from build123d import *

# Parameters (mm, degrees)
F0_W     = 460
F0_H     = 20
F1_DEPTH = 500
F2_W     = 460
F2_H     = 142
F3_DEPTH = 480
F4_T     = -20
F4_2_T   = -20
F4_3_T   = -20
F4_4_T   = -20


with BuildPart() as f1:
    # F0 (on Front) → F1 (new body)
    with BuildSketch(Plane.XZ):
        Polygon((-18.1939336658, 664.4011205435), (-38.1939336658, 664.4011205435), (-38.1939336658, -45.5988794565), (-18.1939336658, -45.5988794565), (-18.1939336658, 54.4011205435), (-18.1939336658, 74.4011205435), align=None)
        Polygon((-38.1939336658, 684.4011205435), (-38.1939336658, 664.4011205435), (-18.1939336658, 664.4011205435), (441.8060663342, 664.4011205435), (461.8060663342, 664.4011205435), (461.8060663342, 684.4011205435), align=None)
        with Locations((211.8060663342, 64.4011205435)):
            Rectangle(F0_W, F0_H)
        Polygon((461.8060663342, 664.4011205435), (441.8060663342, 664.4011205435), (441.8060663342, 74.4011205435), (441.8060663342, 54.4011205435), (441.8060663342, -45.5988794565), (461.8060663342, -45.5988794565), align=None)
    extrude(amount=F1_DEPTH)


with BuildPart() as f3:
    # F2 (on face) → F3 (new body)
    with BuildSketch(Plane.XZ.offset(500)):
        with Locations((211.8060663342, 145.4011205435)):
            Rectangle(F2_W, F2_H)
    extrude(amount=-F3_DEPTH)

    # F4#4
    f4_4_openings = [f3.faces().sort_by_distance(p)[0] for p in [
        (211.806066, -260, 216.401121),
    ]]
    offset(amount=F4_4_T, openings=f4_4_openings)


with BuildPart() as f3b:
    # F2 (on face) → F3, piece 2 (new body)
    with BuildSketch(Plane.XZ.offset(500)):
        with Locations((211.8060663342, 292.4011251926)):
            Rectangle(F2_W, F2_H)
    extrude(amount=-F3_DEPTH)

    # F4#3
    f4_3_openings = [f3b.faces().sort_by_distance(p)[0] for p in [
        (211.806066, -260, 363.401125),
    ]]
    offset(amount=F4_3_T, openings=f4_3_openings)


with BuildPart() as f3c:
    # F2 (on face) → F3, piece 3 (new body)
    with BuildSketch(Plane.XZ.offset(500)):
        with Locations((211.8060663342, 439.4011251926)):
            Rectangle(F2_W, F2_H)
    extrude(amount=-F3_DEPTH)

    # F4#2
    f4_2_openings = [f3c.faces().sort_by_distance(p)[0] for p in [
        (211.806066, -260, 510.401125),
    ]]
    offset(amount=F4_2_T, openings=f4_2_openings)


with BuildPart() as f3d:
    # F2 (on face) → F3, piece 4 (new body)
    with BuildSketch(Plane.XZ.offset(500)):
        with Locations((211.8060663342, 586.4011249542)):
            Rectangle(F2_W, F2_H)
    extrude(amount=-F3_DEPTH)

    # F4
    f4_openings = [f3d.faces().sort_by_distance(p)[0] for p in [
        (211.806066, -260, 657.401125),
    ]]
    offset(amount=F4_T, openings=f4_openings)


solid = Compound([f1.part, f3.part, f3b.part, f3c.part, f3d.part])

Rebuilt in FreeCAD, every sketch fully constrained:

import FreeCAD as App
import Part
import Sketcher
Q = App.Units.Quantity


def faces_at(feature, points):
    """Names of the faces that lie closest to the given points."""
    faces = feature.Shape.Faces
    near = lambda p: min(range(len(faces)), key=lambda i: faces[i].distToShape(Part.Vertex(*p))[0])
    return sorted({f"Face{near(p) + 1}" for p in points})

doc = App.newDocument("Part")
body = doc.addObject("PartDesign::Body", "Body")

# Sketch on XZ plane
sketch1 = doc.addObject("Sketcher::SketchObject", "Sketch")
body.addObject(sketch1)
sketch1.AttachmentSupport = (doc.XZ_Plane, [""])
sketch1.MapMode = "FlatFace"
sketch1.addGeometry([
    Part.LineSegment(App.Vector(-38.193934, -45.598879, 0), App.Vector(-18.193934, -45.598879, 0)),  # 0
    Part.LineSegment(App.Vector(-18.193934, -45.598879, 0), App.Vector(-18.193934, 54.401121, 0)),  # 1
    Part.LineSegment(App.Vector(-18.193934, 54.401121, 0), App.Vector(441.806066, 54.401121, 0)),  # 2
    Part.LineSegment(App.Vector(441.806066, 54.401121, 0), App.Vector(441.806066, -45.598879, 0)),  # 3
    Part.LineSegment(App.Vector(441.806066, -45.598879, 0), App.Vector(461.806066, -45.598879, 0)),  # 4
    Part.LineSegment(App.Vector(461.806066, -45.598879, 0), App.Vector(461.806066, 684.401121, 0)),  # 5
    Part.LineSegment(App.Vector(461.806066, 684.401121, 0), App.Vector(-38.193934, 684.401121, 0)),  # 6
    Part.LineSegment(App.Vector(-38.193934, 684.401121, 0), App.Vector(-38.193934, -45.598879, 0)),  # 7
    Part.LineSegment(App.Vector(441.806066, 74.401121, 0), App.Vector(-18.193934, 74.401121, 0)),  # 8
    Part.LineSegment(App.Vector(-18.193934, 74.401121, 0), App.Vector(-18.193934, 664.401121, 0)),  # 9
    Part.LineSegment(App.Vector(-18.193934, 664.401121, 0), App.Vector(441.806066, 664.401121, 0)),  # 10
    Part.LineSegment(App.Vector(441.806066, 664.401121, 0), App.Vector(441.806066, 74.401121, 0)),  # 11
], False)
sketch1.addConstraint([
    Sketcher.Constraint("Coincident", 0, 2, 1, 1),
    Sketcher.Constraint("Coincident", 1, 2, 2, 1),
    Sketcher.Constraint("Coincident", 2, 2, 3, 1),
    Sketcher.Constraint("Coincident", 3, 2, 4, 1),
    Sketcher.Constraint("Coincident", 4, 2, 5, 1),
    Sketcher.Constraint("Coincident", 5, 2, 6, 1),
    Sketcher.Constraint("Coincident", 6, 2, 7, 1),
    Sketcher.Constraint("Coincident", 7, 2, 0, 1),
    Sketcher.Constraint("Coincident", 8, 2, 9, 1),
    Sketcher.Constraint("Coincident", 9, 2, 10, 1),
    Sketcher.Constraint("Coincident", 10, 2, 11, 1),
    Sketcher.Constraint("Coincident", 11, 2, 8, 1),
    Sketcher.Constraint("Horizontal", 0),
    Sketcher.Constraint("Vertical", 1),
    Sketcher.Constraint("Horizontal", 2),
    Sketcher.Constraint("Vertical", 3),
    Sketcher.Constraint("Horizontal", 4),
    Sketcher.Constraint("Vertical", 5),
    Sketcher.Constraint("Horizontal", 6),
    Sketcher.Constraint("Vertical", 7),
    Sketcher.Constraint("Horizontal", 8),
    Sketcher.Constraint("Vertical", 9),
    Sketcher.Constraint("Horizontal", 10),
    Sketcher.Constraint("Vertical", 11),
    Sketcher.Constraint("Horizontal", 0, 2, 3, 2),
    Sketcher.Constraint("Vertical", 1, 2, 8, 2),
    Sketcher.Constraint("Vertical", 3, 2, 10, 2),
    Sketcher.Constraint("Equal", 0, 4),
    Sketcher.Constraint("DistanceX", 0, 1, 0, 2, Q("20 mm")),
    Sketcher.Constraint("DistanceX", 2, 1, 2, 2, Q("460 mm")),
    Sketcher.Constraint("DistanceY", 1, 1, 1, 2, Q("100 mm")),
    Sketcher.Constraint("DistanceY", 5, 1, 5, 2, Q("730 mm")),
    Sketcher.Constraint("DistanceY", 9, 1, 9, 2, Q("590 mm")),
    Sketcher.Constraint("DistanceY", 1, 2, 8, 2, Q("20 mm")),
    Sketcher.Constraint("DistanceY", 0, 2, -1, 1, Q("45.598879 mm")),
    Sketcher.Constraint("DistanceX", 0, 2, -1, 1, Q("18.193934 mm")),
])
pad1 = doc.addObject("PartDesign::Pad", "Pad")
body.addObject(pad1)
pad1.Profile = sketch1
pad1.Length = 500
body2 = doc.addObject("PartDesign::Body", "Body001")

# Sketch on XZ plane
sketch2 = doc.addObject("Sketcher::SketchObject", "Sketch001")
body2.addObject(sketch2)
sketch2.AttachmentSupport = (doc.getObject("XZ_Plane001"), [""])
sketch2.MapMode = "FlatFace"
sketch2.AttachmentOffset = App.Placement(App.Vector(0, 0, 500), App.Rotation())
sketch2.addGeometry([
    Part.LineSegment(App.Vector(-18.193934, 216.401121, 0), App.Vector(-18.193934, 74.401121, 0)),
    Part.LineSegment(App.Vector(-18.193934, 74.401121, 0), App.Vector(441.806066, 74.401121, 0)),
    Part.LineSegment(App.Vector(441.806066, 74.401121, 0), App.Vector(441.806066, 216.401121, 0)),
    Part.LineSegment(App.Vector(441.806066, 216.401121, 0), App.Vector(-18.193934, 216.401121, 0)),
], False)
sketch2.addConstraint([
    Sketcher.Constraint("Coincident", 0, 2, 1, 1),
    Sketcher.Constraint("Coincident", 1, 2, 2, 1),
    Sketcher.Constraint("Coincident", 2, 2, 3, 1),
    Sketcher.Constraint("Coincident", 3, 2, 0, 1),
    Sketcher.Constraint("Vertical", 0),
    Sketcher.Constraint("Horizontal", 1),
    Sketcher.Constraint("Vertical", 2),
    Sketcher.Constraint("Horizontal", 3),
    Sketcher.Constraint("DistanceX", 1, 1, 1, 2, Q("460 mm")),
    Sketcher.Constraint("DistanceY", 0, 2, 0, 1, Q("142 mm")),
    Sketcher.Constraint("DistanceY", -1, 1, 0, 2, Q("74.401121 mm")),
    Sketcher.Constraint("DistanceX", 0, 2, -1, 1, Q("18.193934 mm")),
])
pad2 = doc.addObject("PartDesign::Pad", "Pad001")
body2.addObject(pad2)
pad2.Profile = sketch2
pad2.Length = 480
pad2.Reversed = True
doc.recompute()

thickness = doc.addObject("PartDesign::Thickness", "Thickness")
body2.addObject(thickness)
thickness.Base = (pad2, faces_at(pad2, [(211.806, -260, 216.401)]))
thickness.Value = 20
thickness.Reversed = True
thickness.Join = "Arc"
body3 = doc.addObject("PartDesign::Body", "Body002")

# Sketch on XZ plane
sketch3 = doc.addObject("Sketcher::SketchObject", "Sketch002")
body3.addObject(sketch3)
sketch3.AttachmentSupport = (doc.getObject("XZ_Plane002"), [""])
sketch3.MapMode = "FlatFace"
sketch3.AttachmentOffset = App.Placement(App.Vector(0, 0, 500), App.Rotation())
sketch3.addGeometry([
    Part.LineSegment(App.Vector(-18.193934, 363.401125, 0), App.Vector(-18.193934, 221.401125, 0)),
    Part.LineSegment(App.Vector(-18.193934, 221.401125, 0), App.Vector(441.806066, 221.401125, 0)),
    Part.LineSegment(App.Vector(441.806066, 221.401125, 0), App.Vector(441.806066, 363.401125, 0)),
    Part.LineSegment(App.Vector(441.806066, 363.401125, 0), App.Vector(-18.193934, 363.401125, 0)),
], False)
sketch3.addConstraint([
    Sketcher.Constraint("Coincident", 0, 2, 1, 1),
    Sketcher.Constraint("Coincident", 1, 2, 2, 1),
    Sketcher.Constraint("Coincident", 2, 2, 3, 1),
    Sketcher.Constraint("Coincident", 3, 2, 0, 1),
    Sketcher.Constraint("Vertical", 0),
    Sketcher.Constraint("Horizontal", 1),
    Sketcher.Constraint("Vertical", 2),
    Sketcher.Constraint("Horizontal", 3),
    Sketcher.Constraint("DistanceX", 1, 1, 1, 2, Q("460 mm")),
    Sketcher.Constraint("DistanceY", 0, 2, 0, 1, Q("142 mm")),
    Sketcher.Constraint("DistanceX", 0, 2, -1, 1, Q("18.193934 mm")),
    Sketcher.Constraint("DistanceY", -1, 1, 0, 2, Q("221.401125 mm")),
])
pad3 = doc.addObject("PartDesign::Pad", "Pad002")
body3.addObject(pad3)
pad3.Profile = sketch3
pad3.Length = 480
pad3.Reversed = True
doc.recompute()

thickness2 = doc.addObject("PartDesign::Thickness", "Thickness001")
body3.addObject(thickness2)
thickness2.Base = (pad3, faces_at(pad3, [(211.806, -260, 363.401)]))
thickness2.Value = 20
thickness2.Reversed = True
thickness2.Join = "Arc"
body4 = doc.addObject("PartDesign::Body", "Body003")

# Sketch on XZ plane
sketch4 = doc.addObject("Sketcher::SketchObject", "Sketch003")
body4.addObject(sketch4)
sketch4.AttachmentSupport = (doc.getObject("XZ_Plane003"), [""])
sketch4.MapMode = "FlatFace"
sketch4.AttachmentOffset = App.Placement(App.Vector(0, 0, 500), App.Rotation())
sketch4.addGeometry([
    Part.LineSegment(App.Vector(-18.193934, 510.401125, 0), App.Vector(-18.193934, 368.401125, 0)),
    Part.LineSegment(App.Vector(-18.193934, 368.401125, 0), App.Vector(441.806066, 368.401125, 0)),
    Part.LineSegment(App.Vector(441.806066, 368.401125, 0), App.Vector(441.806066, 510.401125, 0)),
    Part.LineSegment(App.Vector(441.806066, 510.401125, 0), App.Vector(-18.193934, 510.401125, 0)),
], False)
sketch4.addConstraint([
    Sketcher.Constraint("Coincident", 0, 2, 1, 1),
    Sketcher.Constraint("Coincident", 1, 2, 2, 1),
    Sketcher.Constraint("Coincident", 2, 2, 3, 1),
    Sketcher.Constraint("Coincident", 3, 2, 0, 1),
    Sketcher.Constraint("Vertical", 0),
    Sketcher.Constraint("Horizontal", 1),
    Sketcher.Constraint("Vertical", 2),
    Sketcher.Constraint("Horizontal", 3),
    Sketcher.Constraint("DistanceX", 1, 1, 1, 2, Q("460 mm")),
    Sketcher.Constraint("DistanceY", 0, 2, 0, 1, Q("142 mm")),
    Sketcher.Constraint("DistanceX", 0, 2, -1, 1, Q("18.193934 mm")),
    Sketcher.Constraint("DistanceY", -1, 1, 0, 2, Q("368.401125 mm")),
])
pad4 = doc.addObject("PartDesign::Pad", "Pad003")
body4.addObject(pad4)
pad4.Profile = sketch4
pad4.Length = 480
pad4.Reversed = True
doc.recompute()

thickness3 = doc.addObject("PartDesign::Thickness", "Thickness002")
body4.addObject(thickness3)
thickness3.Base = (pad4, faces_at(pad4, [(211.806, -260, 510.401)]))
thickness3.Value = 20
thickness3.Reversed = True
thickness3.Join = "Arc"
body5 = doc.addObject("PartDesign::Body", "Body004")

# Sketch on XZ plane
sketch5 = doc.addObject("Sketcher::SketchObject", "Sketch004")
body5.addObject(sketch5)
sketch5.AttachmentSupport = (doc.getObject("XZ_Plane004"), [""])
sketch5.MapMode = "FlatFace"
sketch5.AttachmentOffset = App.Placement(App.Vector(0, 0, 500), App.Rotation())
sketch5.addGeometry([
    Part.LineSegment(App.Vector(-18.193934, 657.401125, 0), App.Vector(-18.193934, 515.401125, 0)),
    Part.LineSegment(App.Vector(-18.193934, 515.401125, 0), App.Vector(441.806066, 515.401125, 0)),
    Part.LineSegment(App.Vector(441.806066, 515.401125, 0), App.Vector(441.806066, 657.401125, 0)),
    Part.LineSegment(App.Vector(441.806066, 657.401125, 0), App.Vector(-18.193934, 657.401125, 0)),
], False)
sketch5.addConstraint([
    Sketcher.Constraint("Coincident", 0, 2, 1, 1),
    Sketcher.Constraint("Coincident", 1, 2, 2, 1),
    Sketcher.Constraint("Coincident", 2, 2, 3, 1),
    Sketcher.Constraint("Coincident", 3, 2, 0, 1),
    Sketcher.Constraint("Vertical", 0),
    Sketcher.Constraint("Horizontal", 1),
    Sketcher.Constraint("Vertical", 2),
    Sketcher.Constraint("Horizontal", 3),
    Sketcher.Constraint("DistanceX", 1, 1, 1, 2, Q("460 mm")),
    Sketcher.Constraint("DistanceY", 0, 2, 0, 1, Q("142 mm")),
    Sketcher.Constraint("DistanceX", 0, 2, -1, 1, Q("18.193934 mm")),
    Sketcher.Constraint("DistanceY", -1, 1, 0, 2, Q("515.401125 mm")),
])
pad5 = doc.addObject("PartDesign::Pad", "Pad004")
body5.addObject(pad5)
pad5.Profile = sketch5
pad5.Length = 480
pad5.Reversed = True
doc.recompute()

thickness4 = doc.addObject("PartDesign::Thickness", "Thickness003")
body5.addObject(thickness4)
thickness4.Base = (pad5, faces_at(pad5, [(211.806, -260, 657.401)]))
thickness4.Value = 20
thickness4.Reversed = True
thickness4.Join = "Arc"

doc.recompute()
